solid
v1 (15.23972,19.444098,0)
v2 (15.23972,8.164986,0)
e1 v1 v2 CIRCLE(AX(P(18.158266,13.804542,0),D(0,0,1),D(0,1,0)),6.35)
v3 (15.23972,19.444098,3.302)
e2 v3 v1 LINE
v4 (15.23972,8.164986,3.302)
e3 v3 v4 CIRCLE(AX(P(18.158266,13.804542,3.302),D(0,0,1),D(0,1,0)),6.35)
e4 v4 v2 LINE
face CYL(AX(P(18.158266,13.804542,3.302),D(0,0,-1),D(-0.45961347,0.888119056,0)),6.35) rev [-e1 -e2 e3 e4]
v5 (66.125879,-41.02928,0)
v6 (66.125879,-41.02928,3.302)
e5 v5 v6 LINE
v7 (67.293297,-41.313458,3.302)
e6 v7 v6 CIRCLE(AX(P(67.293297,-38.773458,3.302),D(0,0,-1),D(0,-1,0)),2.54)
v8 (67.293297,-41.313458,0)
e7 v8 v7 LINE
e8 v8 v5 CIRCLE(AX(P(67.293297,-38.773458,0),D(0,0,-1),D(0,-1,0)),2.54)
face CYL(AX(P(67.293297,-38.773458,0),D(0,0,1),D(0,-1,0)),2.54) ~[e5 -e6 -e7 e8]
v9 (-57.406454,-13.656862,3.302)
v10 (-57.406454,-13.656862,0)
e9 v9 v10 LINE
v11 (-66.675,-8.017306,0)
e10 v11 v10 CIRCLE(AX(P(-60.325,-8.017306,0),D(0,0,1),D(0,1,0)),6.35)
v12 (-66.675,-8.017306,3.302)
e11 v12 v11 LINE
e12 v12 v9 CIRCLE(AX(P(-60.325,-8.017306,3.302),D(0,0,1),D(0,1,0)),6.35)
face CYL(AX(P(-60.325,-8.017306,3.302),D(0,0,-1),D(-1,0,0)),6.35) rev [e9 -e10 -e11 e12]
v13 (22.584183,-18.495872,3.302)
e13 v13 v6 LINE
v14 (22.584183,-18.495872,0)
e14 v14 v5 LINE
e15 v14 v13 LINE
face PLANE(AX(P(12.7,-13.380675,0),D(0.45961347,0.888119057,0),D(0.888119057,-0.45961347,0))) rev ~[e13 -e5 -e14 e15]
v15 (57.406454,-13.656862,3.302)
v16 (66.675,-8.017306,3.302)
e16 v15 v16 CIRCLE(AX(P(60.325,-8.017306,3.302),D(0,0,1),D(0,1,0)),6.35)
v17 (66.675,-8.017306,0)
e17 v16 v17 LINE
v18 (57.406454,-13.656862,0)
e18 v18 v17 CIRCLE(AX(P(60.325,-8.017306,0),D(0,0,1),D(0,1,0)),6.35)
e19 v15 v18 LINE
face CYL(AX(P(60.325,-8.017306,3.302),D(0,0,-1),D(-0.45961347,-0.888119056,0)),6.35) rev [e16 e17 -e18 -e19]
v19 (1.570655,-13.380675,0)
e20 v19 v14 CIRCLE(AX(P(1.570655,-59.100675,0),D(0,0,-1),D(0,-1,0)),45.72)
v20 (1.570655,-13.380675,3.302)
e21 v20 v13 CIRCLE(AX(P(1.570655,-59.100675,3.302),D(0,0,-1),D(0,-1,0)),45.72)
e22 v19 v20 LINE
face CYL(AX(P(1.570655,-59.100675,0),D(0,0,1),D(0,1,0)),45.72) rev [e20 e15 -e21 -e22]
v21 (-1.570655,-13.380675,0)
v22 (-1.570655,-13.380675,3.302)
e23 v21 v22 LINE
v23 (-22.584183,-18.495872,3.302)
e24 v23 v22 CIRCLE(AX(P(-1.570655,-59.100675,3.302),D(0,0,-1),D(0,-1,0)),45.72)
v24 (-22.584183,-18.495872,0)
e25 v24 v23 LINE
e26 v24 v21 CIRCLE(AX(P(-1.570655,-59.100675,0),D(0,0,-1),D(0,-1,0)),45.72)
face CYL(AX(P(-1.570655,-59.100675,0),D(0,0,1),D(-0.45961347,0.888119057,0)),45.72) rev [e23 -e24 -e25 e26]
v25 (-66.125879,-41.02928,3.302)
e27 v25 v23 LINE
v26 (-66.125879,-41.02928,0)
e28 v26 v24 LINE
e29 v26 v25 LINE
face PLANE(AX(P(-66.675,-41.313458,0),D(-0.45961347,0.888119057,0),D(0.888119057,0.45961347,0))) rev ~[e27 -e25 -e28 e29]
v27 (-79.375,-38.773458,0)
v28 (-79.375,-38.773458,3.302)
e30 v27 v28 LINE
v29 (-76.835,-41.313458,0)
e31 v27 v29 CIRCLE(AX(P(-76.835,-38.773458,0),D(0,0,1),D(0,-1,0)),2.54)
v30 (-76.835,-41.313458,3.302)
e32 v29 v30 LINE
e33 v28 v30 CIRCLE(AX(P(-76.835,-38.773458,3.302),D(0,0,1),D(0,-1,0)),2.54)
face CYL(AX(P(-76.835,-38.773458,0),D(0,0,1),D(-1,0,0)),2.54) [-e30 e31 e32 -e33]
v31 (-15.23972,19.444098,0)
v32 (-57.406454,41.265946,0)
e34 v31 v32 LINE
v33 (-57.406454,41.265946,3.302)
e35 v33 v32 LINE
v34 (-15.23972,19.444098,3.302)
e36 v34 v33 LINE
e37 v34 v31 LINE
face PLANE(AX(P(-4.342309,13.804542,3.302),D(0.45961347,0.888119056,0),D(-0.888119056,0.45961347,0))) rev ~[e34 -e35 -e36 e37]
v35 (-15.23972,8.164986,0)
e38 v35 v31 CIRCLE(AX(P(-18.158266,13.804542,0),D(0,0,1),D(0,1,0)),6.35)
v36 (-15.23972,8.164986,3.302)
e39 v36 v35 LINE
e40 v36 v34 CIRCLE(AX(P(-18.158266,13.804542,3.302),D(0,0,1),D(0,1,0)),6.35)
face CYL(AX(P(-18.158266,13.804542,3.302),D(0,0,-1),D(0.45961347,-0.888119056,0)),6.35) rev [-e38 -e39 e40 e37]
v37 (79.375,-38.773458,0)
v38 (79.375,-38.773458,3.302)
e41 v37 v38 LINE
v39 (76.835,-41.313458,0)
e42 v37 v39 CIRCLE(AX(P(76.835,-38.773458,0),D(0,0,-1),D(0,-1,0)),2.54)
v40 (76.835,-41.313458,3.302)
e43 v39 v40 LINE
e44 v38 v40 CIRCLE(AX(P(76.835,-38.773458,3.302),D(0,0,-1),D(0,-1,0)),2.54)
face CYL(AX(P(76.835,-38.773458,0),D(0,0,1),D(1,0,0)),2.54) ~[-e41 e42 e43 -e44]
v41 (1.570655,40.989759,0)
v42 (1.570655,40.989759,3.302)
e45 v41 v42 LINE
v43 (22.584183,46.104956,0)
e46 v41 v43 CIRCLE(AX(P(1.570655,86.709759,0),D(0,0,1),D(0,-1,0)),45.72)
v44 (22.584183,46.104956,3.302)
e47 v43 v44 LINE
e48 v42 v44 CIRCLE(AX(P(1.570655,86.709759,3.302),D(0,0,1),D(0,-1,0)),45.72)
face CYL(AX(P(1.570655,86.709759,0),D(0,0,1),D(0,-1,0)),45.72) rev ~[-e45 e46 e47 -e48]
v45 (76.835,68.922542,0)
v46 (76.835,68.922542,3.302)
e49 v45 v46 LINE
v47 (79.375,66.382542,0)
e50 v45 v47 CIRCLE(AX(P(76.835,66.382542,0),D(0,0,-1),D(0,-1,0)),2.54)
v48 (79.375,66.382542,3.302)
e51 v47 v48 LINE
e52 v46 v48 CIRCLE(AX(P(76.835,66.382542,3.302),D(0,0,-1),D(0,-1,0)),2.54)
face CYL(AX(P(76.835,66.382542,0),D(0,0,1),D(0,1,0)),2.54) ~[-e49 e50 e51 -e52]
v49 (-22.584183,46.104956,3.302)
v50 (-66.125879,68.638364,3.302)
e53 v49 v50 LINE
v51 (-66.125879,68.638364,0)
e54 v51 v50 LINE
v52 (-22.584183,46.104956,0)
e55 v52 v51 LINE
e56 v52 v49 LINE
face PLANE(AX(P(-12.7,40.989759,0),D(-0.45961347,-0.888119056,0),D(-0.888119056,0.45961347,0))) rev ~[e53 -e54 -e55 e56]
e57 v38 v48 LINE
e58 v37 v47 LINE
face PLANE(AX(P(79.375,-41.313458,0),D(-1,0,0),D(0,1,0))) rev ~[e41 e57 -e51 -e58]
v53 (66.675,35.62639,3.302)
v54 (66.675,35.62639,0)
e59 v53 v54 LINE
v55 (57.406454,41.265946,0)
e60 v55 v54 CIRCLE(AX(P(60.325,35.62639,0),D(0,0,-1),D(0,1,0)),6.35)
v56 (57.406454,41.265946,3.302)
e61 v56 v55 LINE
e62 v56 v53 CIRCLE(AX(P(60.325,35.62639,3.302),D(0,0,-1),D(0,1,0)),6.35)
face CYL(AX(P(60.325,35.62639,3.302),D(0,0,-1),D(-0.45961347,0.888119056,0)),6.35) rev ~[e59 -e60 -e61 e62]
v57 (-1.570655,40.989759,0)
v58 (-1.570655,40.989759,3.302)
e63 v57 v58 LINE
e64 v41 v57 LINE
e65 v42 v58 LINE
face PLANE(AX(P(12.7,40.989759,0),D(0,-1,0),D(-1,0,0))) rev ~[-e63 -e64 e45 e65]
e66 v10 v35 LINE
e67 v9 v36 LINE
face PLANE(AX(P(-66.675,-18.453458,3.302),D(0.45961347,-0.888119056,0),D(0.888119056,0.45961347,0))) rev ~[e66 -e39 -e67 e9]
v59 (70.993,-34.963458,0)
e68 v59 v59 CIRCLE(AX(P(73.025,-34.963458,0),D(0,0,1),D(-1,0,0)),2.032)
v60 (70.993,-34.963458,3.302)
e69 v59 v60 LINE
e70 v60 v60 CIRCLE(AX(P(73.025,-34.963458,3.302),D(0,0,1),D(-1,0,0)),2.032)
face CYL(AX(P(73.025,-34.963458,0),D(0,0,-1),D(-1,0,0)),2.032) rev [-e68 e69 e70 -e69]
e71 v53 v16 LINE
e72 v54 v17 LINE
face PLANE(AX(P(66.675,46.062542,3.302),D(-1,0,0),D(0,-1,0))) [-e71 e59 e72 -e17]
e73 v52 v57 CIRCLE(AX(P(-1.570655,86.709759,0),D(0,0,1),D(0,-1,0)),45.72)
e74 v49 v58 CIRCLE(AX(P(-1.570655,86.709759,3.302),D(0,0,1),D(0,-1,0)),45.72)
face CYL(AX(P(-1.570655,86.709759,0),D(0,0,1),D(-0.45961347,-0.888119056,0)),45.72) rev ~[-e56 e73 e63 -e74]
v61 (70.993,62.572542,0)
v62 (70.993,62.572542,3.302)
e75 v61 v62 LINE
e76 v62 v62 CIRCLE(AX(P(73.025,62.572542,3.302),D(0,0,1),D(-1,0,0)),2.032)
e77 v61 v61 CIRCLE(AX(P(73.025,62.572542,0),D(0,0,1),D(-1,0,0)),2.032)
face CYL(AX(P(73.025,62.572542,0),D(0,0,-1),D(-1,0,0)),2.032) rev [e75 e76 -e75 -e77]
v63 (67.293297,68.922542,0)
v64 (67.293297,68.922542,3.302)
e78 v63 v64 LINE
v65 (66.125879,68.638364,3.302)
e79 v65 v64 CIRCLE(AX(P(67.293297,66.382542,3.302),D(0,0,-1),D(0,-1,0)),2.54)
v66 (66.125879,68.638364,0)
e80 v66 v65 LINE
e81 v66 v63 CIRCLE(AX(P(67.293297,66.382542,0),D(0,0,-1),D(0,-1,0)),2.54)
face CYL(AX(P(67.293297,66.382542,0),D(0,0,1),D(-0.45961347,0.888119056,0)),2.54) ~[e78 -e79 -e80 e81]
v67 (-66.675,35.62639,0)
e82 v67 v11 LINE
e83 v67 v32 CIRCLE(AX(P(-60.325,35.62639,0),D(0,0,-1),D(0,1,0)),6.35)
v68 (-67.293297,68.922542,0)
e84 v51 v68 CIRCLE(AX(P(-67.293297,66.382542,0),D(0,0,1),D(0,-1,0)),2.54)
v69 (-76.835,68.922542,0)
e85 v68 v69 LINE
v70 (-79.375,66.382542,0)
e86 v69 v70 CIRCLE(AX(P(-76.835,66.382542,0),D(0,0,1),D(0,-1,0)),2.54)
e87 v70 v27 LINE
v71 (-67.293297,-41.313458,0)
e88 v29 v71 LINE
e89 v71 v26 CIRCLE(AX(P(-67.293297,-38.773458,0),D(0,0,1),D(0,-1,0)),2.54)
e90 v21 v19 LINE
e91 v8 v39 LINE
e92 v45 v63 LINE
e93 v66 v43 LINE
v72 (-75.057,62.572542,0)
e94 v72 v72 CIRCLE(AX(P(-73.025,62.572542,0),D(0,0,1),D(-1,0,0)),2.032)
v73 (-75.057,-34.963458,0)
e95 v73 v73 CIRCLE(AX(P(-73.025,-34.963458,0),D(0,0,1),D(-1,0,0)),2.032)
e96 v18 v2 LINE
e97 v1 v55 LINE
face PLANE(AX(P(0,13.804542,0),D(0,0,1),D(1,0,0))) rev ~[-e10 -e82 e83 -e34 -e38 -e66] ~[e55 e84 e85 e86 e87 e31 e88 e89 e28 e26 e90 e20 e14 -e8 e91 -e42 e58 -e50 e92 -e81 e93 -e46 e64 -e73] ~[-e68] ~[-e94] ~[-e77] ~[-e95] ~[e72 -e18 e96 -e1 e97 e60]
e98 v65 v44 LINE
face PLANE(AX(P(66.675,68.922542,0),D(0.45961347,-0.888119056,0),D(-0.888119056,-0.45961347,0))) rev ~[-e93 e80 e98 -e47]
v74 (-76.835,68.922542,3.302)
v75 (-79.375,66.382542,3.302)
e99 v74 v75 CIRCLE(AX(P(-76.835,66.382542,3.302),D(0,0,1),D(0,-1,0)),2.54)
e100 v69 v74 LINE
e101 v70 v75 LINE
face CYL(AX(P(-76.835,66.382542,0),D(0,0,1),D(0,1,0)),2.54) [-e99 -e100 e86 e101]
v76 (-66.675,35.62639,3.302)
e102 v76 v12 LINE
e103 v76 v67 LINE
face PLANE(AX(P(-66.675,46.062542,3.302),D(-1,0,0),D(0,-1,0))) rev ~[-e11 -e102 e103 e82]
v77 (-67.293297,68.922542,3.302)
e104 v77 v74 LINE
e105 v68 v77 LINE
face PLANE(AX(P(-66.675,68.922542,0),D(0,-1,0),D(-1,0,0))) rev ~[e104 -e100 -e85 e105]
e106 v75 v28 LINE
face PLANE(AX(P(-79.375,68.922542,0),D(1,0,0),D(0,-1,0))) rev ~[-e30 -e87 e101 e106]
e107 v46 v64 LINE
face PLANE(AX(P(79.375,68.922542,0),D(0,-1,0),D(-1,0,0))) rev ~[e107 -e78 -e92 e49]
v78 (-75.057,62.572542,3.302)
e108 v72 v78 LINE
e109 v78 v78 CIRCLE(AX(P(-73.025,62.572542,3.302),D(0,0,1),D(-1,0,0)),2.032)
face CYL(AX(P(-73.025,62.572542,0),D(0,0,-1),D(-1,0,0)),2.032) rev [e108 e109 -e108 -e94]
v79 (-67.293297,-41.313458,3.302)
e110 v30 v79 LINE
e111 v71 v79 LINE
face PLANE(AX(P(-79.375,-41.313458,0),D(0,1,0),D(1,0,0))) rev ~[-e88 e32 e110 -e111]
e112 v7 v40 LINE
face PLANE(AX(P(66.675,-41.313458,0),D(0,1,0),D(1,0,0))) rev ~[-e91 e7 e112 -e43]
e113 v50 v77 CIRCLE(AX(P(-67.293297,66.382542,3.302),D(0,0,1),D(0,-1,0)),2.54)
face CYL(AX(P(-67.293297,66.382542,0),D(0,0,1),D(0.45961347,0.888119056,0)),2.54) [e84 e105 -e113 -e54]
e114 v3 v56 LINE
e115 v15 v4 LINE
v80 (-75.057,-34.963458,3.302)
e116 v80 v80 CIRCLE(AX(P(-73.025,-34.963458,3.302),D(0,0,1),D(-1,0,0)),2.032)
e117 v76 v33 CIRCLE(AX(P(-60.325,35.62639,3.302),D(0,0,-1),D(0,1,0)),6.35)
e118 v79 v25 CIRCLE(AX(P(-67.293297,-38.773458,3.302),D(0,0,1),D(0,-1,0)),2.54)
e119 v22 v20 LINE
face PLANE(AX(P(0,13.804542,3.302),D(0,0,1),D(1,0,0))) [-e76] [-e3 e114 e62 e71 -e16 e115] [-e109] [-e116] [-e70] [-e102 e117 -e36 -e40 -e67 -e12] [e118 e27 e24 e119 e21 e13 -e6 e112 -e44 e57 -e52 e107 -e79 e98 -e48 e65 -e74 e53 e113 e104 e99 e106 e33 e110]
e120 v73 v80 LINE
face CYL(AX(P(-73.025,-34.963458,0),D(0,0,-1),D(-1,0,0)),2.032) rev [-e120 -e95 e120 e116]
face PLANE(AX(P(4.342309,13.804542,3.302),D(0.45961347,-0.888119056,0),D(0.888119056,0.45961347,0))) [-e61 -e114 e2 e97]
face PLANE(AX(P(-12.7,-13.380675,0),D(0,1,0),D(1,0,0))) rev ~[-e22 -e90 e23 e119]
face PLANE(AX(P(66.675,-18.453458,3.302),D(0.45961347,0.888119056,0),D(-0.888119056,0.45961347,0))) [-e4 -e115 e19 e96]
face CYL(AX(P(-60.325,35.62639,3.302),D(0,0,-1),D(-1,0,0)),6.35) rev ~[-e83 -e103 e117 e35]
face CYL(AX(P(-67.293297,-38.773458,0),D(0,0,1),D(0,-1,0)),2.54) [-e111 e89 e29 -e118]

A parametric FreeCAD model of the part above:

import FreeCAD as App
import Part
import Sketcher
from FreeCAD import Vector
Q = App.Units.Quantity


def edges_at(feature, points):
    """Names of the edges that pass closest to the given points."""
    edges = feature.Shape.Edges
    near = lambda p: min(range(len(edges)), key=lambda i: edges[i].distToShape(Part.Vertex(*p))[0])
    return sorted({f"Edge{near(p) + 1}" for p in points})


def add_polygon(sketch, points):
    """Adds a closed chain of lines whose ends are joined by coincident constraints."""
    first, n = sketch.GeometryCount, len(points)
    for a, b in zip(points, points[1:] + points[:1]):
        sketch.addGeometry(Part.LineSegment(App.Vector(*a, 0), App.Vector(*b, 0)), False)
    for i in range(n):
        sketch.addConstraint(Sketcher.Constraint("Coincident", first + i, 2, first + (i + 1) % n, 1))

doc = App.newDocument("Part")
body = doc.addObject("PartDesign::Body", "Body")

# Sketch on XY plane
sketch1 = doc.addObject("Sketcher::SketchObject", "Sketch")
body.addObject(sketch1)
sketch1.AttachmentSupport = (doc.XY_Plane, [""])
sketch1.MapMode = "FlatFace"
add_polygon(sketch1, [(-79.4, 68.9), (-79.4, -41.3), (-66.7, -41.3), (-12.7, -13.4), (12.7, -13.4), (66.7, -41.3), (79.4, -41.3), (79.4, 68.9), (66.7, 68.9), (12.7, 41), (-12.7, 41), (-66.7, 68.9)])  # lines 0-11
sketch1.addGeometry(Part.Circle(Vector(-73, -35, 0), Vector(0, 0, 1), 2), False)  # 12
sketch1.addGeometry(Part.Circle(Vector(73, -35, 0), Vector(0, 0, 1), 2), False)  # 13
sketch1.addGeometry(Part.Circle(Vector(-73, 62.6, 0), Vector(0, 0, 1), 2), False)  # 14
sketch1.addGeometry(Part.Circle(Vector(73, 62.6, 0), Vector(0, 0, 1), 2), False)  # 15
sketch1.addConstraint([
    Sketcher.Constraint("Vertical", 0),
    Sketcher.Constraint("Horizontal", 1),
    Sketcher.Constraint("Horizontal", 3),
    Sketcher.Constraint("Horizontal", 5),
    Sketcher.Constraint("Vertical", 6),
    Sketcher.Constraint("Horizontal", 7),
    Sketcher.Constraint("Horizontal", 9),
    Sketcher.Constraint("Horizontal", 11),
    Sketcher.Constraint("Equal", 12, 13),
    Sketcher.Constraint("Equal", 13, 14),
    Sketcher.Constraint("Equal", 14, 15),
    Sketcher.Constraint("Symmetric", 12, 3, 13, 3, -2),
    Sketcher.Constraint("Symmetric", 14, 3, 15, 3, -2),
    Sketcher.Constraint("Symmetric", 1, 2, 4, 2, -2),
    Sketcher.Constraint("Symmetric", 7, 2, 10, 2, -2),
    Sketcher.Constraint("Parallel", 2, 8),
    Sketcher.Constraint("Parallel", 4, 10),
    Sketcher.Constraint("Vertical", 12, 3, 14, 3),
    Sketcher.Constraint("Vertical", 4, 2, 7, 2),
    Sketcher.Constraint("Vertical", 3, 2, 8, 2),
    Sketcher.Constraint("Vertical", 2, 2, 9, 2),
    Sketcher.Constraint("Equal", 1, 5),
    Sketcher.Constraint("Diameter", 12, Q("0.16 in")),
    Sketcher.Constraint("DistanceX", 3, 1, 3, 2, Q("1 in")),
    Sketcher.Constraint("DistanceX", 1, 1, 1, 2, Q("0.5 in")),
    Sketcher.Constraint("DistanceX", 0, 2, 13, 3, Q("6 in")),
    Sketcher.Constraint("DistanceY", 0, 2, 0, 1, Q("4.34 in")),
    Sketcher.Constraint("DistanceX", 12, 3, 13, 3, Q("5.75 in")),
    Sketcher.Constraint("DistanceY", 12, 3, 14, 3, Q("3.84 in")),
    Sketcher.Constraint("DistanceY", 0, 2, 12, 3, Q("0.25 in")),
    Sketcher.Constraint("Distance", 2, Q("60.774509 mm")),
    Sketcher.Constraint("DistanceY", -1, 1, 8, 2, Q("40.989759 mm")),
])
pad1 = doc.addObject("PartDesign::Pad", "Pad")
body.addObject(pad1)
pad1.Profile = sketch1
pad1.Length = Q("0.13 in")
doc.recompute()

fillet = doc.addObject("PartDesign::Fillet", "Fillet")
body.addObject(fillet)
fillet.Base = (pad1, edges_at(pad1, [
    (-12.7, 40.99, 1.651),
    (12.7, 40.99, 1.651),
    (12.7, -13.381, 1.651),
    (-12.7, -13.381, 1.651),
]))
fillet.Radius = Q("1.8 in")
doc.recompute()

fillet2 = doc.addObject("PartDesign::Fillet", "Fillet001")
body.addObject(fillet2)
fillet2.Base = (fillet, edges_at(fillet, [
    (-66.675, 68.923, 1.651),
    (66.675, 68.923, 1.651),
    (79.375, 68.923, 1.651),
    (79.375, -41.313, 1.651),
    (66.675, -41.313, 1.651),
    (-66.675, -41.313, 1.651),
    (-79.375, -41.313, 1.651),
    (-79.375, 68.923, 1.651),
]))
fillet2.Radius = Q("0.1 in")

# Sketch on XY plane
sketch2 = doc.addObject("Sketcher::SketchObject", "Sketch001")
body.addObject(sketch2)
sketch2.AttachmentSupport = (doc.XY_Plane, [""])
sketch2.MapMode = "FlatFace"
sketch2.AttachmentOffset = App.Placement(Vector(0, 0, 0.13 * 25.4), App.Rotation())
add_polygon(sketch2, [(-67, 46), (-67, -18), (-4, 14)])  # lines 0-2
add_polygon(sketch2, [(67, -18), (67, 46), (4, 14)])  # lines 3-5
sketch2.addConstraint([
    Sketcher.Constraint("Vertical", 0),
    Sketcher.Constraint("Vertical", 3),
    Sketcher.Constraint("Symmetric", 2, 2, 3, 2, -2),
    Sketcher.Constraint("Symmetric", 1, 2, 4, 2, -2),
    Sketcher.Constraint("Parallel", 1, 4),
    Sketcher.Constraint("Parallel", 2, 5),
    Sketcher.Constraint("DistanceY", 0, 2, 0, 1, Q("2.54 in")),
    Sketcher.Constraint("DistanceX", 2, 2, 3, 2, Q("5.25 in")),
    Sketcher.Constraint("DistanceX", 1, 2, -1, 1, Q("4.342309 mm")),
    Sketcher.Constraint("DistanceY", 0, 2, -1, 1, Q("18.453458 mm")),
])
pocket1 = doc.addObject("PartDesign::Pocket", "Pocket")
body.addObject(pocket1)
pocket1.Profile = sketch2
pocket1.Type = "ThroughAll"
doc.recompute()

fillet3 = doc.addObject("PartDesign::Fillet", "Fillet002")
body.addObject(fillet3)
fillet3.Base = (pocket1, edges_at(pocket1, [
    (-4.342, 13.805, 1.651),
    (-66.675, -18.453, 1.651),
    (-66.675, 46.063, 1.651),
    (4.342, 13.805, 1.651),
    (66.675, 46.063, 1.651),
    (66.675, -18.453, 1.651),
]))
fillet3.Radius = Q("0.25 in")

doc.recompute()
